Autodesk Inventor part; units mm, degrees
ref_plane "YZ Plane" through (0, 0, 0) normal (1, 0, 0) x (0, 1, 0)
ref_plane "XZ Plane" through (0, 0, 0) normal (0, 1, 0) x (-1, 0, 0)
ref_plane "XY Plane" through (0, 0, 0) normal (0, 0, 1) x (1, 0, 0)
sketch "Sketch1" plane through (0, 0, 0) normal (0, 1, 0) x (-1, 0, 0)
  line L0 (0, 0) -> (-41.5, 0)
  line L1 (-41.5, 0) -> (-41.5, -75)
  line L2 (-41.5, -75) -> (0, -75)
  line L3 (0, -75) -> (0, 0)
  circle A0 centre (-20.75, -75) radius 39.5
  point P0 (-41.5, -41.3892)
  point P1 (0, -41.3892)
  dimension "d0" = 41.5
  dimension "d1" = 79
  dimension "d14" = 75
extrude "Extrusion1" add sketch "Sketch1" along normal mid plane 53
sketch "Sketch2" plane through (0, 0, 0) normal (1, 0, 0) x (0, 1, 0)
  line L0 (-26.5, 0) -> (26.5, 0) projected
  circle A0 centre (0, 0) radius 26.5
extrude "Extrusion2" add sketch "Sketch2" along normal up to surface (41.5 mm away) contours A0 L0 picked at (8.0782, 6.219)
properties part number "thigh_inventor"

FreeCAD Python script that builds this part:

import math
import FreeCAD as App
import Part
import Sketcher
from FreeCAD import Vector
Q = App.Units.Quantity

doc = App.newDocument("Part")
params = doc.addObject("Spreadsheet::Sheet", "Params")
for row, (alias, value) in enumerate([
    ("sketch1_radius", "39.5 mm"),
    ("sketch1_width", "41.5 mm"),
    ("pad1_length", "53 mm"),
    ("sketch2_radius", "26.5 mm"),
    ("pad2_length", "41.5 mm"),
], start=1):
    params.set(f"A{row}", alias)
    params.set(f"B{row}", "=" + value)
    params.setAlias(f"B{row}", alias)

body = doc.addObject("PartDesign::Body", "Body")

# Sketch on XZ plane
sketch1 = body.newObject("Sketcher::SketchObject", "Sketch")
sketch1.AttachmentSupport = (doc.getObject("XZ_Plane"), [""])
sketch1.MapMode = "FlatFace"
sketch1.addGeometry(Part.LineSegment(Vector(0, -41, 0), Vector(0, 0, 0)), False)
sketch1.addGeometry(Part.LineSegment(Vector(0, 0, 0), Vector(42, 0, 0)), False)
sketch1.addGeometry(Part.LineSegment(Vector(42, 0, 0), Vector(42, -41, 0)), False)
sketch1.addGeometry(Part.ArcOfCircle(Part.Circle(Vector(21, -75, 0), Vector(0, 0, 1), 40), math.radians(122), math.radians(418)), False)
sketch1.addConstraint(Sketcher.Constraint("Coincident", 0, 2, 1, 1))
sketch1.addConstraint(Sketcher.Constraint("Coincident", 1, 2, 2, 1))
sketch1.addConstraint(Sketcher.Constraint("Coincident", 2, 2, 3, 2))
sketch1.addConstraint(Sketcher.Constraint("Coincident", 3, 1, 0, 1))
sketch1.addConstraint(Sketcher.Constraint("Vertical", 0))
sketch1.addConstraint(Sketcher.Constraint("Horizontal", 1))
sketch1.addConstraint(Sketcher.Constraint("Vertical", 2))
sketch1.addConstraint(Sketcher.Constraint("Coincident", 0, 2, -1, 1))
sketch1.addConstraint(Sketcher.Constraint("Horizontal", 2, 2, 3, 1))
sketch1.addConstraint(Sketcher.Constraint("Radius", 3, Q("39.5 mm")))
sketch1.addConstraint(Sketcher.Constraint("DistanceX", 1, 1, 1, 2, Q("41.5 mm")))
sketch1.addConstraint(Sketcher.Constraint("DistanceY", 3, 3, -1, 1, Q("75 mm")))
sketch1.setExpression("Constraints[9]", "Params.sketch1_radius")
sketch1.setExpression("Constraints[10]", "Params.sketch1_width")
pad1 = body.newObject("PartDesign::Pad", "Pad")
pad1.Profile = sketch1
pad1.setExpression("Length", "Params.pad1_length")
pad1.Midplane = True

# Sketch on YZ plane
sketch2 = body.newObject("Sketcher::SketchObject", "Sketch001")
sketch2.AttachmentSupport = (doc.getObject("YZ_Plane"), [""])
sketch2.MapMode = "FlatFace"
sketch2.addGeometry(Part.ArcOfCircle(Part.Circle(Vector(0, 0, 0), Vector(0, 0, 1), 26), math.radians(0), math.radians(180)), False)
sketch2.addGeometry(Part.LineSegment(Vector(-26, 0, 0), Vector(26, 0, 0)), False)
sketch2.addConstraint(Sketcher.Constraint("Coincident", 0, 1, 1, 2))
sketch2.addConstraint(Sketcher.Constraint("Coincident", 1, 1, 0, 2))
sketch2.addConstraint(Sketcher.Constraint("Horizontal", 1))
sketch2.addConstraint(Sketcher.Constraint("Coincident", 0, 3, -1, 1))
sketch2.addConstraint(Sketcher.Constraint("PointOnObject", 0, 1, -1))
sketch2.addConstraint(Sketcher.Constraint("Radius", 0, Q("26.5 mm")))
sketch2.setExpression("Constraints[5]", "Params.sketch2_radius")
pad2 = body.newObject("PartDesign::Pad", "Pad001")
pad2.Profile = sketch2
pad2.setExpression("Length", "Params.pad2_length")

doc.recompute()
